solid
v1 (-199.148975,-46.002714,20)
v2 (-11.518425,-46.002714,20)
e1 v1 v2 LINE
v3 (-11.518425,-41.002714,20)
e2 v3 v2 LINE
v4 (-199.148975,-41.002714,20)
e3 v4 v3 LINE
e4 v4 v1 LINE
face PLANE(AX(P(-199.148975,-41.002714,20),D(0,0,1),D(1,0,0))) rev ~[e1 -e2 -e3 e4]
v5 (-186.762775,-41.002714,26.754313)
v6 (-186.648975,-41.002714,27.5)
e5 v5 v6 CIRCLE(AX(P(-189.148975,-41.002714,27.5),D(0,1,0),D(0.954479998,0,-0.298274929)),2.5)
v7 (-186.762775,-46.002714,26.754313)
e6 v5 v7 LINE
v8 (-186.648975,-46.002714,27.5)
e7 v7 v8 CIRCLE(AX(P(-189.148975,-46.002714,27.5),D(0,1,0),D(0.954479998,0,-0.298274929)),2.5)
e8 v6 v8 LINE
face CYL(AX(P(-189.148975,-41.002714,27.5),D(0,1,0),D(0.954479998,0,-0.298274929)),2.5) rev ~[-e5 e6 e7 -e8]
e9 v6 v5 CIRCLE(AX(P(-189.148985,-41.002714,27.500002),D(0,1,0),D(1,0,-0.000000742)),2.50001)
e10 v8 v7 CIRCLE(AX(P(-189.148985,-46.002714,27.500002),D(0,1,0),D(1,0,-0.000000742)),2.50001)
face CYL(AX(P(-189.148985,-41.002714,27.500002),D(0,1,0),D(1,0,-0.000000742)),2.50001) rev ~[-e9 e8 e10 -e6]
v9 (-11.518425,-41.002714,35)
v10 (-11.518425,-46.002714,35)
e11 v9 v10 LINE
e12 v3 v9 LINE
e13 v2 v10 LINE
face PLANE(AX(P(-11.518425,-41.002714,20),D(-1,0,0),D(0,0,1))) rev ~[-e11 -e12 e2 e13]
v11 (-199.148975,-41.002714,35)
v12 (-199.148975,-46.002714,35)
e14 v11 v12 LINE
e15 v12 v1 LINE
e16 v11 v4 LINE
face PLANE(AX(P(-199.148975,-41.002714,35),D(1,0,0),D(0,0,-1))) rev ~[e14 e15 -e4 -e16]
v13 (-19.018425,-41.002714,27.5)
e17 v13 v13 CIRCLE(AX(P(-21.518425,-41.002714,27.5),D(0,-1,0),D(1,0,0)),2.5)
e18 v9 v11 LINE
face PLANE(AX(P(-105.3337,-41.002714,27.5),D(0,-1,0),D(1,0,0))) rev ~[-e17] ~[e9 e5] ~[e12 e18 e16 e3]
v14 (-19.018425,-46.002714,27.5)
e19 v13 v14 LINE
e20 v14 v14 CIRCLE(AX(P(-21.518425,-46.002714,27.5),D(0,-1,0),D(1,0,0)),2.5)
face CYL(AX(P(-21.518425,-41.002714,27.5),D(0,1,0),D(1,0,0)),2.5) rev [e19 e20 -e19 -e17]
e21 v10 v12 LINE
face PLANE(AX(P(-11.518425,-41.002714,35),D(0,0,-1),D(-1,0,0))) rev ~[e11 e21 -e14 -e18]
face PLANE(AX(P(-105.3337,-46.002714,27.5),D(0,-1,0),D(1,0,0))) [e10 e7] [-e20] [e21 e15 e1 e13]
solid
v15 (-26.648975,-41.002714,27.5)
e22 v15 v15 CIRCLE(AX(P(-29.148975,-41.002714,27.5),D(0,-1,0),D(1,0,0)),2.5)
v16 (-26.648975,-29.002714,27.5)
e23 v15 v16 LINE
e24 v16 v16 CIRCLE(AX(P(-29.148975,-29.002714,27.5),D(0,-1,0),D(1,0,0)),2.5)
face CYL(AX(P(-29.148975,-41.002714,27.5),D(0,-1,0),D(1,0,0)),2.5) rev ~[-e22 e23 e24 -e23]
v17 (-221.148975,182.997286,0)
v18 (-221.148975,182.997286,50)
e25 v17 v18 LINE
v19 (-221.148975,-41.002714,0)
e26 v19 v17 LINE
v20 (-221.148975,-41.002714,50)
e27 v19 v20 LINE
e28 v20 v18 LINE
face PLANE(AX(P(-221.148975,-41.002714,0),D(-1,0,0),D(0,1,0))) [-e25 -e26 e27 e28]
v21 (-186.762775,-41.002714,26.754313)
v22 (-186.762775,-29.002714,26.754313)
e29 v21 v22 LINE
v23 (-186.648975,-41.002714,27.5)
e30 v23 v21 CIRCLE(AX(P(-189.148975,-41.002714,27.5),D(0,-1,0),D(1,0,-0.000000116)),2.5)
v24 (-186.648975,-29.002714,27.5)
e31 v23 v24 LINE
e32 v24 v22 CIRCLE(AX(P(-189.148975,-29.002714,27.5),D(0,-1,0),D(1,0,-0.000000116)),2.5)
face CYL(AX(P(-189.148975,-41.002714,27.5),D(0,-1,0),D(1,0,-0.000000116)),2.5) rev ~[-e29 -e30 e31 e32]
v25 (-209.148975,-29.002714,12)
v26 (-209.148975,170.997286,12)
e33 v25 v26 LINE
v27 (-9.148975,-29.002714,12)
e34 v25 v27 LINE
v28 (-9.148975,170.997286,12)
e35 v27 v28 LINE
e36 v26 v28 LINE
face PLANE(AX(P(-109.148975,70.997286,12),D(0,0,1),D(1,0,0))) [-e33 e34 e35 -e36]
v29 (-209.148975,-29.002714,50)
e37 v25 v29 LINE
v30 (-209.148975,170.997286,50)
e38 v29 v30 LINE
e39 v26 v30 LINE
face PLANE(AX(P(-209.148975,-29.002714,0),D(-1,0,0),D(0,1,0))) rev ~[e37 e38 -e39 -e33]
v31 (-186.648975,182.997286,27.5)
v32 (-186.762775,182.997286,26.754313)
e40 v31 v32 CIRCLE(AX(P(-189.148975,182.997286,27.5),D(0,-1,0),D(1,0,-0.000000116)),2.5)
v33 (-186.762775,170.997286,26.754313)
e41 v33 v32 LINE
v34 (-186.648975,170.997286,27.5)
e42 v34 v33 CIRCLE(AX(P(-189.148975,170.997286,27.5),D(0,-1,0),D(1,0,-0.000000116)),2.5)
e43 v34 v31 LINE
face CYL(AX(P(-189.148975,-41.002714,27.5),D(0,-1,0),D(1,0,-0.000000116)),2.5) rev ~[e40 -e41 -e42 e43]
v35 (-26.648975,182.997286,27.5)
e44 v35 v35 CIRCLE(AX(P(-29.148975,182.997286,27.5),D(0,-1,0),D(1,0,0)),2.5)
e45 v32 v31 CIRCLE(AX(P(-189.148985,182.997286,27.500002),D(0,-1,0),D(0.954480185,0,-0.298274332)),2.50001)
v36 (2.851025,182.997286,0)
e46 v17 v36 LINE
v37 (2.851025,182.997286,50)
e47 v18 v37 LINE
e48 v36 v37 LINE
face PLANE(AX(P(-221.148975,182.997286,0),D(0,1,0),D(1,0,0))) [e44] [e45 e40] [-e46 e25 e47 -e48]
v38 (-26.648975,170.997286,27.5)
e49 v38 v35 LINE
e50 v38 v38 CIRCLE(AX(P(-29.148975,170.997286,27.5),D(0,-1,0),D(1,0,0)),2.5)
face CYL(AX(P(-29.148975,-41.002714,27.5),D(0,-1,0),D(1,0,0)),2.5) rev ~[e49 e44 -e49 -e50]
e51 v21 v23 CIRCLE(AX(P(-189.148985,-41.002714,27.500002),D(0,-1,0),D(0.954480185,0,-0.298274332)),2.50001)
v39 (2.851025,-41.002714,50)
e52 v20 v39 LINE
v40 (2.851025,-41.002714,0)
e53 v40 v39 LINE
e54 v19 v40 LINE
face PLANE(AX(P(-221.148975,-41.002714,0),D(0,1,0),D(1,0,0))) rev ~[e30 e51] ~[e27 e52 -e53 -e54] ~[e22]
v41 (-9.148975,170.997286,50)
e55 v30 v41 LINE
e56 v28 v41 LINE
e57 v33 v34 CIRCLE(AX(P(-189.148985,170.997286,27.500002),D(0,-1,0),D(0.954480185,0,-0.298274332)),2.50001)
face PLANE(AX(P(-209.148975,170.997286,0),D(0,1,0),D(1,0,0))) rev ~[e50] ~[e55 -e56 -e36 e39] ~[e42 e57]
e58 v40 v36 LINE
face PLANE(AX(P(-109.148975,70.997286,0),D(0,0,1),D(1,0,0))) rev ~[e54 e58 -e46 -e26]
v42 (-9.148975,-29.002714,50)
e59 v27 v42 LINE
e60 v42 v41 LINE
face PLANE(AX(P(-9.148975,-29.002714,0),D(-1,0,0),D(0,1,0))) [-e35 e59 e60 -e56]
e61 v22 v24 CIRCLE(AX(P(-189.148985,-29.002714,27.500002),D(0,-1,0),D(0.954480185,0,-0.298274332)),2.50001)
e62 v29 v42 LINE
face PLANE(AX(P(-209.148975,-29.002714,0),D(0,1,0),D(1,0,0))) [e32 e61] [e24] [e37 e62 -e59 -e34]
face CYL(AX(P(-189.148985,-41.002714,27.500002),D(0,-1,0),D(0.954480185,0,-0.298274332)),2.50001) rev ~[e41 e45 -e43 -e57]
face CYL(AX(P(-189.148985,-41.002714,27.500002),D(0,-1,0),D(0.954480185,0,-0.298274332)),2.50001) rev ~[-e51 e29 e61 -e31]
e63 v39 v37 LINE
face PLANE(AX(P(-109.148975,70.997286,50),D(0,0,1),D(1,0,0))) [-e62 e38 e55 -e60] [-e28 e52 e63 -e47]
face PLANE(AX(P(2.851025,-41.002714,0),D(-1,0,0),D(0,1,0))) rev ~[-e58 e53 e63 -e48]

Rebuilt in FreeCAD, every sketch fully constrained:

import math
import FreeCAD as App
import Part
import Sketcher
from FreeCAD import Vector
Q = App.Units.Quantity

doc = App.newDocument("Part")
body = doc.addObject("PartDesign::Body", "Body")

# Sketch on XY plane
sketch1 = body.newObject("Sketcher::SketchObject", "Sketch")
sketch1.AttachmentSupport = (doc.getObject("XY_Plane"), [""])
sketch1.MapMode = "FlatFace"
sketch1.addGeometry([
    Part.LineSegment(Vector(-221, 183, 0), Vector(-221, -41, 0)),  # 0
    Part.LineSegment(Vector(-221, -41, 0), Vector(3, -41, 0)),  # 1
    Part.LineSegment(Vector(3, -41, 0), Vector(3, 183, 0)),  # 2
    Part.LineSegment(Vector(3, 183, 0), Vector(-221, 183, 0)),  # 3
    Part.LineSegment(Vector(-9, -29, 0), Vector(-209, -29, 0)),  # 4
    Part.LineSegment(Vector(-209, -29, 0), Vector(-209, 171, 0)),  # 5
    Part.LineSegment(Vector(-209, 171, 0), Vector(-9, 171, 0)),  # 6
    Part.LineSegment(Vector(-9, 171, 0), Vector(-9, -29, 0)),  # 7
], False)
sketch1.addConstraint([
    Sketcher.Constraint("Coincident", 0, 2, 1, 1),
    Sketcher.Constraint("Coincident", 1, 2, 2, 1),
    Sketcher.Constraint("Coincident", 2, 2, 3, 1),
    Sketcher.Constraint("Coincident", 3, 2, 0, 1),
    Sketcher.Constraint("Coincident", 4, 2, 5, 1),
    Sketcher.Constraint("Coincident", 5, 2, 6, 1),
    Sketcher.Constraint("Coincident", 6, 2, 7, 1),
    Sketcher.Constraint("Coincident", 7, 2, 4, 1),
    Sketcher.Constraint("Vertical", 0),
    Sketcher.Constraint("Horizontal", 1),
    Sketcher.Constraint("Vertical", 2),
    Sketcher.Constraint("Horizontal", 3),
    Sketcher.Constraint("Horizontal", 4),
    Sketcher.Constraint("Vertical", 5),
    Sketcher.Constraint("Horizontal", 6),
    Sketcher.Constraint("Vertical", 7),
    Sketcher.Constraint("Equal", 3, 0),
    Sketcher.Constraint("Equal", 6, 5),
    Sketcher.Constraint("DistanceX", 1, 1, 1, 2, Q("224 mm")),
    Sketcher.Constraint("DistanceX", 4, 2, 4, 1, Q("200 mm")),
    Sketcher.Constraint("DistanceX", 0, 2, 4, 2, Q("12 mm")),
    Sketcher.Constraint("DistanceY", 0, 2, 4, 2, Q("12 mm")),
    Sketcher.Constraint("DistanceX", 0, 2, -1, 1, Q("221.148975 mm")),
    Sketcher.Constraint("DistanceY", 0, 2, -1, 1, Q("41.002714 mm")),
])
pad1 = body.newObject("PartDesign::Pad", "Pad")
pad1.Profile = sketch1
pad1.Length = 50

# Sketch on XY plane
sketch2 = body.newObject("Sketcher::SketchObject", "Sketch001")
sketch2.AttachmentSupport = (doc.getObject("XY_Plane"), [""])
sketch2.MapMode = "FlatFace"
sketch2.addGeometry([
    Part.LineSegment(Vector(-209, 171, 0), Vector(-209, -29, 0)),
    Part.LineSegment(Vector(-209, -29, 0), Vector(-9, -29, 0)),
    Part.LineSegment(Vector(-9, -29, 0), Vector(-9, 171, 0)),
    Part.LineSegment(Vector(-9, 171, 0), Vector(-209, 171, 0)),
], False)
sketch2.addConstraint([
    Sketcher.Constraint("Coincident", 0, 2, 1, 1),
    Sketcher.Constraint("Coincident", 1, 2, 2, 1),
    Sketcher.Constraint("Coincident", 2, 2, 3, 1),
    Sketcher.Constraint("Coincident", 3, 2, 0, 1),
    Sketcher.Constraint("Vertical", 0),
    Sketcher.Constraint("Horizontal", 1),
    Sketcher.Constraint("Vertical", 2),
    Sketcher.Constraint("Horizontal", 3),
    Sketcher.Constraint("Equal", 3, 0),
    Sketcher.Constraint("DistanceX", 1, 1, 1, 2, Q("200 mm")),
    Sketcher.Constraint("DistanceX", 0, 2, -1, 1, Q("209.148975 mm")),
    Sketcher.Constraint("DistanceY", 0, 2, -1, 1, Q("29.002714 mm")),
])
pad2 = body.newObject("PartDesign::Pad", "Pad001")
pad2.Profile = sketch2
pad2.Length = 12

# Sketch on XZ plane
sketch3 = body.newObject("Sketcher::SketchObject", "Sketch002")
sketch3.AttachmentSupport = (doc.getObject("XZ_Plane"), [""])
sketch3.MapMode = "FlatFace"
sketch3.AttachmentOffset = App.Placement(Vector(0, 0, 41.002714), App.Rotation())
sketch3.addGeometry([
    Part.Circle(Vector(-29.1, 27.5, 0), Vector(0, 0, 1), 2.5),
    Part.ArcOfCircle(Part.Circle(Vector(-189.1, 27.5, 0), Vector(0, 0, 1), 2.5), math.radians(-17.35), math.radians(0)),
    Part.ArcOfCircle(Part.Circle(Vector(-189.1, 27.5, 0), Vector(0, 0, 1), 2.5), math.radians(0), math.radians(343)),
], False)
sketch3.addConstraint([
    Sketcher.Constraint("Tangent", 1, 1, 2, 2),
    Sketcher.Constraint("Coincident", 2, 1, 1, 2),
    Sketcher.Constraint("Equal", 0, 2),
    Sketcher.Constraint("Horizontal", 0, 3, 1, 3),
    Sketcher.Constraint("Horizontal", 1, 3, 2, 1),
    Sketcher.Constraint("Diameter", 0, Q("5 mm")),
    Sketcher.Constraint("DistanceX", 2, 3, 0, 3, Q("160 mm")),
    Sketcher.Constraint("DistanceY", -1, 1, 0, 3, Q("27.5 mm")),
    Sketcher.Constraint("DistanceX", 2, 3, 1, 1, Q("2.3862 mm")),
    Sketcher.Constraint("DistanceX", 0, 3, -1, 1, Q("29.148975 mm")),
])
pocket1 = body.newObject("PartDesign::Pocket", "Pocket")
pocket1.Profile = sketch3
pocket1.Length = 300
body2 = doc.addObject("PartDesign::Body", "Body001")

# Sketch on XZ plane
sketch4 = body2.newObject("Sketcher::SketchObject", "Sketch003")
sketch4.AttachmentSupport = (doc.getObject("XZ_Plane001"), [""])
sketch4.MapMode = "FlatFace"
sketch4.AttachmentOffset = App.Placement(Vector(0, 0, 41.002714), App.Rotation())
sketch4.addGeometry([
    Part.LineSegment(Vector(-199.1, 20, 0), Vector(-11.5, 20, 0)),  # 0
    Part.LineSegment(Vector(-11.5, 20, 0), Vector(-11.5, 35, 0)),  # 1
    Part.LineSegment(Vector(-11.5, 35, 0), Vector(-199.1, 35, 0)),  # 2
    Part.LineSegment(Vector(-199.1, 35, 0), Vector(-199.1, 20, 0)),  # 3
    Part.Circle(Vector(-21.5, 27.5, 0), Vector(0, 0, 1), 2.5),  # 4
    Part.ArcOfCircle(Part.Circle(Vector(-189.1, 27.5, 0), Vector(0, 0, 1), 2.5), math.radians(-17.35), math.radians(0)),  # 5
    Part.ArcOfCircle(Part.Circle(Vector(-189.1, 27.5, 0), Vector(0, 0, 1), 2.5), math.radians(0), math.radians(343)),  # 6
], False)
sketch4.addConstraint([
    Sketcher.Constraint("Coincident", 0, 2, 1, 1),
    Sketcher.Constraint("Coincident", 1, 2, 2, 1),
    Sketcher.Constraint("Coincident", 2, 2, 3, 1),
    Sketcher.Constraint("Coincident", 3, 2, 0, 1),
    Sketcher.Constraint("Tangent", 5, 1, 6, 2),
    Sketcher.Constraint("Coincident", 6, 1, 5, 2),
    Sketcher.Constraint("Horizontal", 0),
    Sketcher.Constraint("Vertical", 1),
    Sketcher.Constraint("Horizontal", 2),
    Sketcher.Constraint("Vertical", 3),
    Sketcher.Constraint("Equal", 4, 6),
    Sketcher.Constraint("Horizontal", 4, 3, 5, 3),
    Sketcher.Constraint("Horizontal", 5, 3, 6, 1),
    Sketcher.Constraint("Diameter", 4, Q("5 mm")),
    Sketcher.Constraint("DistanceY", 1, 1, 1, 2, Q("15 mm")),
    Sketcher.Constraint("DistanceY", -1, 1, 0, 2, Q("20 mm")),
    Sketcher.Constraint("DistanceX", 4, 3, 0, 2, Q("10 mm")),
    Sketcher.Constraint("DistanceX", 2, 2, 6, 3, Q("10 mm")),
    Sketcher.Constraint("DistanceY", -1, 1, 4, 3, Q("27.5 mm")),
    Sketcher.Constraint("DistanceX", 0, 1, 0, 2, Q("187.63055 mm")),
    Sketcher.Constraint("DistanceX", 6, 3, 5, 1, Q("2.3862 mm")),
    Sketcher.Constraint("DistanceX", 4, 3, -1, 1, Q("21.518425 mm")),
])
pad3 = body2.newObject("PartDesign::Pad", "Pad002")
pad3.Profile = sketch4
pad3.Length = 5

doc.recompute()
